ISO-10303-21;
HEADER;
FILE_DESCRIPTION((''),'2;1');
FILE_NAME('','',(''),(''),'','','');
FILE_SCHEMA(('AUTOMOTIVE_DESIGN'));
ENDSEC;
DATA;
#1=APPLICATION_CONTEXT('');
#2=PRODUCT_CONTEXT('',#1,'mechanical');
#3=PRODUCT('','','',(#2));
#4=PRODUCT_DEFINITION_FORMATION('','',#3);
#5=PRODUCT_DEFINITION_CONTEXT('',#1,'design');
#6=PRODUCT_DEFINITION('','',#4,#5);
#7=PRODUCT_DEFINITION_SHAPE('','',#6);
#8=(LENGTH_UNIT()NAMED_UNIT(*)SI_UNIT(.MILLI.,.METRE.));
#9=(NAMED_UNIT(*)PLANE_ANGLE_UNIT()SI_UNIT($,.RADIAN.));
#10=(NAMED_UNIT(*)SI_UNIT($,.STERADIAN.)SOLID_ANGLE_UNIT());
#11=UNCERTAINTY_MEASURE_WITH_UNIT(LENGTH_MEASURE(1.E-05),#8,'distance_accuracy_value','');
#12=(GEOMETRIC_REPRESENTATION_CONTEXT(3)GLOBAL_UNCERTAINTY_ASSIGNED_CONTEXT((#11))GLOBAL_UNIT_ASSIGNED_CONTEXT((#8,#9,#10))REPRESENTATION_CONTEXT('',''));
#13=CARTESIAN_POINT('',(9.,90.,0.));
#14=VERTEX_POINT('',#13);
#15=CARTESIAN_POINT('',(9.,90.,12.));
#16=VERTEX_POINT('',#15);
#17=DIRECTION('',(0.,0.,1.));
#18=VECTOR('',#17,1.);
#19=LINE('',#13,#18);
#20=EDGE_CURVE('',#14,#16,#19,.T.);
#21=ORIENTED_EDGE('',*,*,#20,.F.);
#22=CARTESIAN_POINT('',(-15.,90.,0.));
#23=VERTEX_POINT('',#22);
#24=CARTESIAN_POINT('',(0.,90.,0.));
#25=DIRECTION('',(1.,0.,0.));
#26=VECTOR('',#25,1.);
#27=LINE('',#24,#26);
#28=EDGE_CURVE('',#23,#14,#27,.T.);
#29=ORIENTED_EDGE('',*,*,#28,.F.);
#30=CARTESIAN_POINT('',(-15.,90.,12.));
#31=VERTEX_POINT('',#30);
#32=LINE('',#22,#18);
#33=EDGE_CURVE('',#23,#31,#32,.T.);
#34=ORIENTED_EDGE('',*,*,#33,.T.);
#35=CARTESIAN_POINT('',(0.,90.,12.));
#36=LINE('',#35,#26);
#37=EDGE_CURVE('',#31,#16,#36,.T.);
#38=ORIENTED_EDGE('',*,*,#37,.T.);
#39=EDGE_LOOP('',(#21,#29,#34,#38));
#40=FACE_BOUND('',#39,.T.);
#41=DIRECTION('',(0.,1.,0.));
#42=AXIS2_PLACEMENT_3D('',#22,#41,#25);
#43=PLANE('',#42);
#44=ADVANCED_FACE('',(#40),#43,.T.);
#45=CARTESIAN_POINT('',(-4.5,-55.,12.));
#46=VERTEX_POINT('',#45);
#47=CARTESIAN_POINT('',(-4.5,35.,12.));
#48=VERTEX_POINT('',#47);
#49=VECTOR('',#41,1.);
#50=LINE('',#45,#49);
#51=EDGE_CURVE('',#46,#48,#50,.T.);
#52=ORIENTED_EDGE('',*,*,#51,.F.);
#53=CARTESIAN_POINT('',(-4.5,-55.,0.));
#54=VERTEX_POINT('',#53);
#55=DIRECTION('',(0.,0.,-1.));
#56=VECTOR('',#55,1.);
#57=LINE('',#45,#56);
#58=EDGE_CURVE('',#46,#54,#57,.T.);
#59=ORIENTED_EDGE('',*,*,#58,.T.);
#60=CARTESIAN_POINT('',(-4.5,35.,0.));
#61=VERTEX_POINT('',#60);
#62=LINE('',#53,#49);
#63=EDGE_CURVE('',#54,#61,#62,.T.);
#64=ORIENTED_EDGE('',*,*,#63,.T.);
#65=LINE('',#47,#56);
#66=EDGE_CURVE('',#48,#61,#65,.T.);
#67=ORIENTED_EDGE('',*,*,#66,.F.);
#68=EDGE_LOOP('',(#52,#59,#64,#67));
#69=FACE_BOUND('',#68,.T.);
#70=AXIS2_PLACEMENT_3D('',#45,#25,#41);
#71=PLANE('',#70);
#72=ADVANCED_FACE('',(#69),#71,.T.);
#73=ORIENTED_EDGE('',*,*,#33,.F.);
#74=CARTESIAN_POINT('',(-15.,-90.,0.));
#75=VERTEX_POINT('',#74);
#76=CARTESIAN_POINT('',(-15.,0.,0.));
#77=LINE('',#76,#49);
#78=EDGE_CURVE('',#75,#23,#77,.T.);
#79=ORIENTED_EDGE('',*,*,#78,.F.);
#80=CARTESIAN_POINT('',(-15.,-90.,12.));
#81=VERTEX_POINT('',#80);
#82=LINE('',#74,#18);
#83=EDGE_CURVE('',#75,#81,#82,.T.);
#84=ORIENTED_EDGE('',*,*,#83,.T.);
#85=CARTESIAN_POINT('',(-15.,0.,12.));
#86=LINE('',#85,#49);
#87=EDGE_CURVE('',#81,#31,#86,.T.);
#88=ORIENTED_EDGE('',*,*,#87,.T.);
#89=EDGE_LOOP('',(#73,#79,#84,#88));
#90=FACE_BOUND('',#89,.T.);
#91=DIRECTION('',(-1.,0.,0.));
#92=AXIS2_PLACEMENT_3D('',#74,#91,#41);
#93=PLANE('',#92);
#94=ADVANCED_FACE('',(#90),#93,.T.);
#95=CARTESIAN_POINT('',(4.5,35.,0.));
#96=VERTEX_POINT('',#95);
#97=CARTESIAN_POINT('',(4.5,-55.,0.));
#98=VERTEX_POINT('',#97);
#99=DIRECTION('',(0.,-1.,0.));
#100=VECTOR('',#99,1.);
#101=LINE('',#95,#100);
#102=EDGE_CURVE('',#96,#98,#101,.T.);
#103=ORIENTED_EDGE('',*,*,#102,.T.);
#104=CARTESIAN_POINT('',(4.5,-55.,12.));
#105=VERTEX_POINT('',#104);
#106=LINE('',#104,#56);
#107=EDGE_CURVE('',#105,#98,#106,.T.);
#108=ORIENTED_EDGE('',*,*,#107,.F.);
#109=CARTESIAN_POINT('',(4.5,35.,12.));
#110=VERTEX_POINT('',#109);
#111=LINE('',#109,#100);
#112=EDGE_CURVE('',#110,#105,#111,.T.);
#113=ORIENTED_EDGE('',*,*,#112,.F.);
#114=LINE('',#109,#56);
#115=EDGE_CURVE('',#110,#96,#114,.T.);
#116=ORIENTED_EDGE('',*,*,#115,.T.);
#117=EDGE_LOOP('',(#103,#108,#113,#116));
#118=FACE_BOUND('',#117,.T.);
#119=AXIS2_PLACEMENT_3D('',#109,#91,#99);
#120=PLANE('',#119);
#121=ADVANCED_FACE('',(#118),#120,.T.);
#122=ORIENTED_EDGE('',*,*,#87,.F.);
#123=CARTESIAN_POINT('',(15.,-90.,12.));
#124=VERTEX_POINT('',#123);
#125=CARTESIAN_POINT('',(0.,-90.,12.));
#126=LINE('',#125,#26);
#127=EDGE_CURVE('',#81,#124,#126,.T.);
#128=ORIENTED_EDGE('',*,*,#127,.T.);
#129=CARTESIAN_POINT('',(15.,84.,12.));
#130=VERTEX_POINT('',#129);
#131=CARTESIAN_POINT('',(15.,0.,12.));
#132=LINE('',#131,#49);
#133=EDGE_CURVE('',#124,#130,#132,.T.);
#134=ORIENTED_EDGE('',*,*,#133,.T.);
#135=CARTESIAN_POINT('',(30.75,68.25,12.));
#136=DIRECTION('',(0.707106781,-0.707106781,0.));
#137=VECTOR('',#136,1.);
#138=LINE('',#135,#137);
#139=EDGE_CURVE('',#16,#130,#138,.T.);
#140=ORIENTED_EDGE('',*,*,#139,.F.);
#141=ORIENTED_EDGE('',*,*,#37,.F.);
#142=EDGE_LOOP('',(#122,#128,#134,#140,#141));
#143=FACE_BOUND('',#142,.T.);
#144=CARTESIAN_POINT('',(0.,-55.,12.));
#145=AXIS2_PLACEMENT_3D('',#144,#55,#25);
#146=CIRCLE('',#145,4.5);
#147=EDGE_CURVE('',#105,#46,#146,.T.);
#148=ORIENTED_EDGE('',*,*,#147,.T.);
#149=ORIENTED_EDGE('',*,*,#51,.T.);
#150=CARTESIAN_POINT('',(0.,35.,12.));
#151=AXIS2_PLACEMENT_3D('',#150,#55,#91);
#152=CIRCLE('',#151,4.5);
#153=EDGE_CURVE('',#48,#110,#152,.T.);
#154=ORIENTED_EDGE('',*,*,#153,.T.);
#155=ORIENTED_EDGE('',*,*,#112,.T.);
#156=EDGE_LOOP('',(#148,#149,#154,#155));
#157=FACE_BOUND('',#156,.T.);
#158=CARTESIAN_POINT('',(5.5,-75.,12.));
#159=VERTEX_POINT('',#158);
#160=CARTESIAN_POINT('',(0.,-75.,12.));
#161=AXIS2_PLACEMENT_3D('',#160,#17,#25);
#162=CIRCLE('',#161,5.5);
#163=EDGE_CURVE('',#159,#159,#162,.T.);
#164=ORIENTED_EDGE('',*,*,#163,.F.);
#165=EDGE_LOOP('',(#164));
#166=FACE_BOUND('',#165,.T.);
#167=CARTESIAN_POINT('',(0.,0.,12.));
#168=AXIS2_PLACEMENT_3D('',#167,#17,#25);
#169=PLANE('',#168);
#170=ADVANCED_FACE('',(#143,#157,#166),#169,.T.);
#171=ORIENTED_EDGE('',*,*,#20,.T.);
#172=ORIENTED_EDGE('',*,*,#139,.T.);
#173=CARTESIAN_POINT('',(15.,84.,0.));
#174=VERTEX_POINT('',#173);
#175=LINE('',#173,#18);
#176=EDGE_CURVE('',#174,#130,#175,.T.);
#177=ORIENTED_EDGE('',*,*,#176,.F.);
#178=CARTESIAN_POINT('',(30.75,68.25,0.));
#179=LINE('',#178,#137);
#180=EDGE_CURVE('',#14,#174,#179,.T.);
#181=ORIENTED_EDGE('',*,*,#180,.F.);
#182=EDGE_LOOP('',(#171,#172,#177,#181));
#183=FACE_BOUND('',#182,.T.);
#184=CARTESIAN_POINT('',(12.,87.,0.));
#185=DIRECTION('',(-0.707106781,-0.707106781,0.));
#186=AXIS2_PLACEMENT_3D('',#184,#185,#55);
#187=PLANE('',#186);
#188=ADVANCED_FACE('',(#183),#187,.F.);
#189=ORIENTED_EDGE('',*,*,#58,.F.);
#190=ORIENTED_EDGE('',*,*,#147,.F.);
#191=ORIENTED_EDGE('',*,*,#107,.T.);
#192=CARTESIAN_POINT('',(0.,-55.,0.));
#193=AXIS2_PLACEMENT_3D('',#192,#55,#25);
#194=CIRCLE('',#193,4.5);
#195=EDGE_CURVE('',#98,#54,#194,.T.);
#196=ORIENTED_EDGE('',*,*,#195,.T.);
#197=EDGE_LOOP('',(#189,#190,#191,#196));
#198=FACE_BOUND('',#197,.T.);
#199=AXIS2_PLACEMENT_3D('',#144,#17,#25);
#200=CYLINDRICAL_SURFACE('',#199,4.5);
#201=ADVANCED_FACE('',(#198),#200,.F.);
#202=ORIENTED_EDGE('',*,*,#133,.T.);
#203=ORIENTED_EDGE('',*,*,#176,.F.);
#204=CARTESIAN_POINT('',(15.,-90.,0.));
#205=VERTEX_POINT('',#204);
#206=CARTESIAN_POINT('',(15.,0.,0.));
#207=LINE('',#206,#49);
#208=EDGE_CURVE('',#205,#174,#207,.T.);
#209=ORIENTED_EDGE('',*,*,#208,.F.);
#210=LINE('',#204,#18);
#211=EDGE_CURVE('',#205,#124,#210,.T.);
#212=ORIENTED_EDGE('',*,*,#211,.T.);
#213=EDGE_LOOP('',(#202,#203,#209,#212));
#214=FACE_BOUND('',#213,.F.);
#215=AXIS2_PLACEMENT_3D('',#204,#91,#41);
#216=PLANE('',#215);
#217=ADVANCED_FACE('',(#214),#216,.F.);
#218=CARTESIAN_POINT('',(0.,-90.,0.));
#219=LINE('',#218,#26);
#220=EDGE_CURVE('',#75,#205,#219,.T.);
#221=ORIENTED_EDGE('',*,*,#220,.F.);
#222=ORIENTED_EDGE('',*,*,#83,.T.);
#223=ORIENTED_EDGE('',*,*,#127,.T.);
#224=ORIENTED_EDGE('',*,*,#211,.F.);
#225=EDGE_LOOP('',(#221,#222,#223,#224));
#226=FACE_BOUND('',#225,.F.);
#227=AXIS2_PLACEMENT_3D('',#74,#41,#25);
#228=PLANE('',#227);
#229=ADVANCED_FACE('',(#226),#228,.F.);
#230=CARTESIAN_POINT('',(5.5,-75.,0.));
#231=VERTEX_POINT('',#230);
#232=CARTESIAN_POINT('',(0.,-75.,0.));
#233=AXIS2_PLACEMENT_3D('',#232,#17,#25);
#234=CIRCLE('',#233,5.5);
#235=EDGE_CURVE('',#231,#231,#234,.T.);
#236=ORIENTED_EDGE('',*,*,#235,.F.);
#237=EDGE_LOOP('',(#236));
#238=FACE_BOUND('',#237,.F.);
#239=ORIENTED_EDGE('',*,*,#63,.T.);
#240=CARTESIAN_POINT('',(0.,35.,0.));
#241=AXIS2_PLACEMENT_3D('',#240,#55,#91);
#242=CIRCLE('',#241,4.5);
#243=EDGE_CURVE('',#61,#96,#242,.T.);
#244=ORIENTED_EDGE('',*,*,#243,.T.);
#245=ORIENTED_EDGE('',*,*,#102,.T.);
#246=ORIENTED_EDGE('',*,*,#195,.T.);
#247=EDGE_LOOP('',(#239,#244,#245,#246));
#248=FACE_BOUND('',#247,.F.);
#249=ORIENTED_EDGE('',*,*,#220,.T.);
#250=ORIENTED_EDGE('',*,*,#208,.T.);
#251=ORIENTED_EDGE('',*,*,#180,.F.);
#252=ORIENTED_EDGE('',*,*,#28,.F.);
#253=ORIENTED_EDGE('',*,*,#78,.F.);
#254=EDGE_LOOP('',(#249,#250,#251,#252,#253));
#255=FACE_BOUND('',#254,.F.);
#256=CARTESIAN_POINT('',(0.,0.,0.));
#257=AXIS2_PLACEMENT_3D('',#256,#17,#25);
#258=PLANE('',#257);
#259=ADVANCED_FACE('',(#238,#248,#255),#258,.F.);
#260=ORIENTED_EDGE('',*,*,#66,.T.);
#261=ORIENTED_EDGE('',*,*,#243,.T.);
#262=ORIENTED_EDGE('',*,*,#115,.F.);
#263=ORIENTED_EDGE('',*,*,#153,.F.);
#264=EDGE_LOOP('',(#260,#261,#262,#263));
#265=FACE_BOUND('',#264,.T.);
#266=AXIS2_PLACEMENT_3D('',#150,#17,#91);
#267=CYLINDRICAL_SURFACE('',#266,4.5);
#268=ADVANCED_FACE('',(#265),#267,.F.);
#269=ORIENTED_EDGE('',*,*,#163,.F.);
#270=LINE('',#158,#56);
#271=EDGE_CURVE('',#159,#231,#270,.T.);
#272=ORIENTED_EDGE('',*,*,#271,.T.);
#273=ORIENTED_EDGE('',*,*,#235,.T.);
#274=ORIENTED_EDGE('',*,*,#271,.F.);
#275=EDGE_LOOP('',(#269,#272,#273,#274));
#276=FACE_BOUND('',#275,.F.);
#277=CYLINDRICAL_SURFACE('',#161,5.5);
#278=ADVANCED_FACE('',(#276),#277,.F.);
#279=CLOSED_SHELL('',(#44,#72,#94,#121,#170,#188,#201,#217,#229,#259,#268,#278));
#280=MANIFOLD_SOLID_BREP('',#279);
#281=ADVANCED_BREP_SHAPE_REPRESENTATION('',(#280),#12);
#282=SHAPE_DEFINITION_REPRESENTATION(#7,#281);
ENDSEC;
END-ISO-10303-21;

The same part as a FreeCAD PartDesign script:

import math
import FreeCAD as App
import Part
import Sketcher
Q = App.Units.Quantity


def edges_at(feature, points):
    """Names of the edges that pass closest to the given points."""
    edges = feature.Shape.Edges
    near = lambda p: min(range(len(edges)), key=lambda i: edges[i].distToShape(Part.Vertex(*p))[0])
    return sorted({f"Edge{near(p) + 1}" for p in points})

doc = App.newDocument("Part")
params = doc.addObject("Spreadsheet::Sheet", "Params")
for row, (alias, value) in enumerate([
    ("sketch1_width", "30 mm"),
    ("sketch1_height", "180 mm"),
    ("pad1_length", "12 mm"),
    ("sketch2_diameter", "11 mm"),
    ("sketch2_radius", "4.5 mm"),
    ("sketch2_height", "90 mm"),
    ("pocket1_length", "12 mm"),
    ("chamfer_size", "6 mm"),
], start=1):
    params.set(f"A{row}", alias)
    params.set(f"B{row}", "=" + value)
    params.setAlias(f"B{row}", alias)

body = doc.addObject("PartDesign::Body", "Body")

sketch1 = body.newObject("Sketcher::SketchObject", "Sketch")
sketch1.AttachmentSupport = (doc.getObject("XY_Plane"), [""])
sketch1.MapMode = "FlatFace"
sketch1.addGeometry([
    Part.LineSegment(App.Vector(-15, 90, 0), App.Vector(-15, -90, 0)),
    Part.LineSegment(App.Vector(-15, -90, 0), App.Vector(15, -90, 0)),
    Part.LineSegment(App.Vector(15, -90, 0), App.Vector(15, 90, 0)),
    Part.LineSegment(App.Vector(15, 90, 0), App.Vector(-15, 90, 0)),
], False)
sketch1.addConstraint([
    Sketcher.Constraint("Coincident", 0, 2, 1, 1),
    Sketcher.Constraint("Coincident", 1, 2, 2, 1),
    Sketcher.Constraint("Coincident", 2, 2, 3, 1),
    Sketcher.Constraint("Coincident", 3, 2, 0, 1),
    Sketcher.Constraint("Vertical", 0),
    Sketcher.Constraint("Horizontal", 1),
    Sketcher.Constraint("Vertical", 2),
    Sketcher.Constraint("Horizontal", 3),
    Sketcher.Constraint("Symmetric", 0, 2, 2, 2, -1, 1),
    Sketcher.Constraint("DistanceX", 1, 1, 1, 2, Q("30 mm")),
    Sketcher.Constraint("DistanceY", 0, 2, 0, 1, Q("180 mm")),
])
sketch1.setExpression("Constraints[9]", "Params.sketch1_width")
sketch1.setExpression("Constraints[10]", "Params.sketch1_height")
pad1 = body.newObject("PartDesign::Pad", "Pad")
pad1.Profile = sketch1
pad1.setExpression("Length", "Params.pad1_length")

sketch2 = body.newObject("Sketcher::SketchObject", "Sketch001")
sketch2.AttachmentSupport = (doc.getObject("XY_Plane"), [""])
sketch2.MapMode = "FlatFace"
sketch2.AttachmentOffset = App.Placement(App.Vector(0, 0, 12), App.Rotation())
sketch2.addGeometry([
    Part.Circle(App.Vector(0, -75, 0), App.Vector(0, 0, 1), 5.5),
    Part.LineSegment(App.Vector(4.5, -55, 0), App.Vector(4.5, 35, 0)),
    Part.ArcOfCircle(Part.Circle(App.Vector(0, 35, 0), App.Vector(0, 0, 1), 4.5), math.radians(0), math.radians(180)),
    Part.LineSegment(App.Vector(-4.5, 35, 0), App.Vector(-4.5, -55, 0)),
    Part.ArcOfCircle(Part.Circle(App.Vector(0, -55, 0), App.Vector(0, 0, 1), 4.5), math.radians(180), math.radians(360)),
], False)
sketch2.addConstraint([
    Sketcher.Constraint("Tangent", 1, 2, 2, 1),
    Sketcher.Constraint("Tangent", 2, 2, 3, 1),
    Sketcher.Constraint("Tangent", 3, 2, 4, 1),
    Sketcher.Constraint("Tangent", 4, 2, 1, 1),
    Sketcher.Constraint("Vertical", 1),
    Sketcher.Constraint("Vertical", 3),
    Sketcher.Constraint("PointOnObject", 0, 3, -2),
    Sketcher.Constraint("PointOnObject", 2, 3, -2),
    Sketcher.Constraint("Diameter", 0, Q("11 mm")),
    Sketcher.Constraint("Radius", 2, Q("4.5 mm")),
    Sketcher.Constraint("DistanceY", 1, 1, 1, 2, Q("90 mm")),
    Sketcher.Constraint("DistanceY", 0, 3, -1, 1, Q("75 mm")),
    Sketcher.Constraint("DistanceY", -1, 1, 2, 3, Q("35 mm")),
])
sketch2.setExpression("Constraints[8]", "Params.sketch2_diameter")
sketch2.setExpression("Constraints[9]", "Params.sketch2_radius")
sketch2.setExpression("Constraints[10]", "Params.sketch2_height")
pocket1 = body.newObject("PartDesign::Pocket", "Pocket")
pocket1.Profile = sketch2
pocket1.setExpression("Length", "Params.pocket1_length")
doc.recompute()

chamfer = body.newObject("PartDesign::Chamfer", "Chamfer")
chamfer.Base = (pocket1, edges_at(pocket1, [(15, 90, 6)]))
chamfer.setExpression("Size", "Params.chamfer_size")

doc.recompute()
